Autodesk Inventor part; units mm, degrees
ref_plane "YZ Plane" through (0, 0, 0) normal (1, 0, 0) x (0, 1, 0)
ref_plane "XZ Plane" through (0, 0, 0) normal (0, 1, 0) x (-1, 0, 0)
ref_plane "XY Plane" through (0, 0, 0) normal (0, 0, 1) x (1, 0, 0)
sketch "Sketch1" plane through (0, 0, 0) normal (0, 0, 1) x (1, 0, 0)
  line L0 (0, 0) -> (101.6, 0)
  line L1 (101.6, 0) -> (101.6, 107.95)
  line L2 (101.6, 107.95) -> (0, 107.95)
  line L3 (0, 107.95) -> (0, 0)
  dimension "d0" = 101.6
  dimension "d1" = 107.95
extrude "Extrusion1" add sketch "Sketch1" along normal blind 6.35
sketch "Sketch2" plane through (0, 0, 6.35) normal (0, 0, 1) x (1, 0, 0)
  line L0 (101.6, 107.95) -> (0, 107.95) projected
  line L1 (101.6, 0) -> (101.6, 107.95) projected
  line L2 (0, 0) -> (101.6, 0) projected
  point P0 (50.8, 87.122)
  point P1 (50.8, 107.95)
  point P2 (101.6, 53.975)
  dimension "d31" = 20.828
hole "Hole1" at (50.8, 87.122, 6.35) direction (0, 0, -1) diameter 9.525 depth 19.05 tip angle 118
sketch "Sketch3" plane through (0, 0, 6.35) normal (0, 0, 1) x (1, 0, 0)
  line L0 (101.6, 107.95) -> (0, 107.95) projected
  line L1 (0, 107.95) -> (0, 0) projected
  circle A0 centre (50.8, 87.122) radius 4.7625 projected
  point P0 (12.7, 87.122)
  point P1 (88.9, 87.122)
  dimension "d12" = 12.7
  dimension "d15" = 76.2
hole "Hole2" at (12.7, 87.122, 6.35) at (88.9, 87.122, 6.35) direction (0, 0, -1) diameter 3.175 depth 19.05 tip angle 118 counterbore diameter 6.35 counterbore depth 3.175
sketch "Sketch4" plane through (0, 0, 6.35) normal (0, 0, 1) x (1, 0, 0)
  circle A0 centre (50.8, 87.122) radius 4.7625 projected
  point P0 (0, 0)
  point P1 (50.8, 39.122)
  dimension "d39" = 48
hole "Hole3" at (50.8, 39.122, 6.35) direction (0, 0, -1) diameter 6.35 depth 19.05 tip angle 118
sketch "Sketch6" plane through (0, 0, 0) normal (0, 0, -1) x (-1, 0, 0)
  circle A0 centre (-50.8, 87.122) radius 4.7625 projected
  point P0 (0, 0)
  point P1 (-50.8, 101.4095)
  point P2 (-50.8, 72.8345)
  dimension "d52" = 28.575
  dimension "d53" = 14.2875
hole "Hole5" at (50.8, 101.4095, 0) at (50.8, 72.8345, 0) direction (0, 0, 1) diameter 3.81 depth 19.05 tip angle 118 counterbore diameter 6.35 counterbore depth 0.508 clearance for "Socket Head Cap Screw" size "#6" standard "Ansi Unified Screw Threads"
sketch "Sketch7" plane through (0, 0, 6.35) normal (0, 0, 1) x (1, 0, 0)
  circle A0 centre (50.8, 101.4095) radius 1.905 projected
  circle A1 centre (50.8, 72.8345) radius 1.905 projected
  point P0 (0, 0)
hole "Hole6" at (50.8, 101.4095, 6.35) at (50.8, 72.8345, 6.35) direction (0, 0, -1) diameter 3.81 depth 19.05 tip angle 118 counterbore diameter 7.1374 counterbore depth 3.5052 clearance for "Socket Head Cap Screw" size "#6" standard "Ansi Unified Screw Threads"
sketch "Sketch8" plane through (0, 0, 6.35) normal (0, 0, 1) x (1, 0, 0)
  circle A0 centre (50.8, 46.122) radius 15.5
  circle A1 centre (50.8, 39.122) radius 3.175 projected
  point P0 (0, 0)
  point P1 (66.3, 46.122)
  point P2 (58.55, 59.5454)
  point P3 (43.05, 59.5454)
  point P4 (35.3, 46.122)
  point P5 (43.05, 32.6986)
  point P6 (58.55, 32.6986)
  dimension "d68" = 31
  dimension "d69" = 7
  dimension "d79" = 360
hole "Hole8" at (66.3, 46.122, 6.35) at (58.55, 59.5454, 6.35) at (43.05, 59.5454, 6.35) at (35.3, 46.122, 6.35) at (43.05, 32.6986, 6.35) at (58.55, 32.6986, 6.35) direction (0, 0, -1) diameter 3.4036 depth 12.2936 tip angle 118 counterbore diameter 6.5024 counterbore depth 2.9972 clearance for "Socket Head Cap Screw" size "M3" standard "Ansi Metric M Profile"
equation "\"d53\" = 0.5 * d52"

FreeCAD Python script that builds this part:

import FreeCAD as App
import Part
import Sketcher
from FreeCAD import Vector
Q = App.Units.Quantity

doc = App.newDocument("Part")
body = doc.addObject("PartDesign::Body", "Body")

# Sketch on XY plane
sketch1 = body.newObject("Sketcher::SketchObject", "Sketch")
sketch1.AttachmentSupport = (doc.getObject("XY_Plane"), [""])
sketch1.MapMode = "FlatFace"
sketch1.addGeometry([
    Part.LineSegment(Vector(0, 108, 0), Vector(0, 0, 0)),
    Part.LineSegment(Vector(0, 0, 0), Vector(102, 0, 0)),
    Part.LineSegment(Vector(102, 0, 0), Vector(102, 108, 0)),
    Part.LineSegment(Vector(102, 108, 0), Vector(0, 108, 0)),
], False)
sketch1.addConstraint([
    Sketcher.Constraint("Coincident", 0, 2, 1, 1),
    Sketcher.Constraint("Coincident", 1, 2, 2, 1),
    Sketcher.Constraint("Coincident", 2, 2, 3, 1),
    Sketcher.Constraint("Coincident", 3, 2, 0, 1),
    Sketcher.Constraint("Vertical", 0),
    Sketcher.Constraint("Horizontal", 1),
    Sketcher.Constraint("Vertical", 2),
    Sketcher.Constraint("Horizontal", 3),
    Sketcher.Constraint("Coincident", 0, 2, -1, 1),
    Sketcher.Constraint("DistanceX", 1, 1, 1, 2, Q("4 in")),
    Sketcher.Constraint("DistanceY", 0, 2, 0, 1, Q("4.25 in")),
])
pad1 = body.newObject("PartDesign::Pad", "Pad")
pad1.Profile = sketch1
pad1.Length = Q("0.25 in")

# Sketch on XY plane
sketch2 = body.newObject("Sketcher::SketchObject", "Sketch001")
sketch2.AttachmentSupport = (doc.getObject("XY_Plane"), [""])
sketch2.MapMode = "FlatFace"
sketch2.AttachmentOffset = App.Placement(Vector(0, 0, 0.25 * 25.4), App.Rotation())
sketch2.addGeometry(Part.Circle(Vector(50.8, 87.1, 0), Vector(0, 0, 1), 4.8), False)
sketch2.addConstraint([
    Sketcher.Constraint("Diameter", 0, Q("0.375 in")),
    Sketcher.Constraint("DistanceX", -1, 1, 0, 3, Q("2 in")),
    Sketcher.Constraint("DistanceY", -1, 1, 0, 3, Q("3.43 in")),
])
doc.recompute()
hole = body.newObject("PartDesign::Hole", "Hole")
hole.Profile = sketch2
hole.ThreadType = "None"
hole.Diameter = Q("0.375 in")
hole.DepthType = "Dimension"
hole.Depth = Q("0.75 in")
hole.DrillPoint = "Angled"
hole.DrillPointAngle = 118

# Sketch on XY plane
sketch3 = body.newObject("Sketcher::SketchObject", "Sketch002")
sketch3.AttachmentSupport = (doc.getObject("XY_Plane"), [""])
sketch3.MapMode = "FlatFace"
sketch3.AttachmentOffset = App.Placement(Vector(0, 0, 0.25 * 25.4), App.Rotation())
sketch3.addGeometry([
    Part.Circle(Vector(12.7, 87.1, 0), Vector(0, 0, 1), 1.6),
    Part.Circle(Vector(88.9, 87.1, 0), Vector(0, 0, 1), 1.6),
], False)
sketch3.addConstraint([
    Sketcher.Constraint("Equal", 0, 1),
    Sketcher.Constraint("Horizontal", 0, 3, 1, 3),
    Sketcher.Constraint("Diameter", 0, Q("0.125 in")),
    Sketcher.Constraint("DistanceX", 0, 3, 1, 3, Q("3 in")),
    Sketcher.Constraint("DistanceX", -1, 1, 0, 3, Q("0.5 in")),
    Sketcher.Constraint("DistanceY", -1, 1, 0, 3, Q("3.43 in")),
])
doc.recompute()
hole2 = body.newObject("PartDesign::Hole", "Hole001")
hole2.Profile = sketch3
hole2.ThreadType = "None"
hole2.Diameter = Q("0.125 in")
hole2.DepthType = "Dimension"
hole2.Depth = Q("0.75 in")
hole2.DrillPoint = "Angled"
hole2.DrillPointAngle = 118
hole2.HoleCutType = "Counterbore"
hole2.HoleCutDiameter = Q("0.25 in")
hole2.HoleCutDepth = Q("0.125 in")

# Sketch on XY plane
sketch4 = body.newObject("Sketcher::SketchObject", "Sketch003")
sketch4.AttachmentSupport = (doc.getObject("XY_Plane"), [""])
sketch4.MapMode = "FlatFace"
sketch4.AttachmentOffset = App.Placement(Vector(0, 0, 0.25 * 25.4), App.Rotation())
sketch4.addGeometry(Part.Circle(Vector(50.8, 39.1, 0), Vector(0, 0, 1), 3.2), False)
sketch4.addConstraint([
    Sketcher.Constraint("Diameter", 0, Q("0.25 in")),
    Sketcher.Constraint("DistanceX", -1, 1, 0, 3, Q("2 in")),
    Sketcher.Constraint("DistanceY", -1, 1, 0, 3, 39.122),
])
doc.recompute()
hole3 = body.newObject("PartDesign::Hole", "Hole002")
hole3.Profile = sketch4
hole3.ThreadType = "None"
hole3.Diameter = Q("0.25 in")
hole3.DepthType = "Dimension"
hole3.Depth = Q("0.75 in")
hole3.DrillPoint = "Angled"
hole3.DrillPointAngle = 118

# Sketch on XY plane
sketch5 = body.newObject("Sketcher::SketchObject", "Sketch004")
sketch5.AttachmentSupport = (doc.getObject("XY_Plane"), [""])
sketch5.MapMode = "FlatFace"
sketch5.addGeometry([
    Part.Circle(Vector(50.8, 101.4, 0), Vector(0, 0, 1), 1.9),
    Part.Circle(Vector(50.8, 72.8, 0), Vector(0, 0, 1), 1.9),
], False)
sketch5.addConstraint([
    Sketcher.Constraint("Equal", 0, 1),
    Sketcher.Constraint("Vertical", 0, 3, 1, 3),
    Sketcher.Constraint("Diameter", 0, Q("0.15 in")),
    Sketcher.Constraint("DistanceX", -1, 1, 0, 3, Q("2 in")),
    Sketcher.Constraint("DistanceY", 1, 3, 0, 3, Q("1.125 in")),
    Sketcher.Constraint("DistanceY", -1, 1, 0, 3, Q("3.9925 in")),
])
doc.recompute()
hole4 = body.newObject("PartDesign::Hole", "Hole003")
hole4.Profile = sketch5
hole4.ThreadType = "None"
hole4.Diameter = Q("0.15 in")
hole4.DepthType = "Dimension"
hole4.Depth = Q("0.75 in")
hole4.DrillPoint = "Angled"
hole4.DrillPointAngle = 118
hole4.HoleCutType = "Counterbore"
hole4.HoleCutDiameter = Q("0.25 in")
hole4.HoleCutDepth = Q("0.02 in")
hole4.Reversed = True

# Sketch on XY plane
sketch6 = body.newObject("Sketcher::SketchObject", "Sketch005")
sketch6.AttachmentSupport = (doc.getObject("XY_Plane"), [""])
sketch6.MapMode = "FlatFace"
sketch6.AttachmentOffset = App.Placement(Vector(0, 0, 0.25 * 25.4), App.Rotation())
sketch6.addGeometry([
    Part.Circle(Vector(50.8, 101.4, 0), Vector(0, 0, 1), 1.9),
    Part.Circle(Vector(50.8, 72.8, 0), Vector(0, 0, 1), 1.9),
], False)
sketch6.addConstraint([
    Sketcher.Constraint("Equal", 0, 1),
    Sketcher.Constraint("Vertical", 0, 3, 1, 3),
    Sketcher.Constraint("Diameter", 0, Q("0.15 in")),
    Sketcher.Constraint("DistanceX", -1, 1, 0, 3, Q("2 in")),
    Sketcher.Constraint("DistanceY", 1, 3, 0, 3, Q("1.125 in")),
    Sketcher.Constraint("DistanceY", -1, 1, 0, 3, Q("3.9925 in")),
])
doc.recompute()
hole5 = body.newObject("PartDesign::Hole", "Hole004")
hole5.Profile = sketch6
hole5.ThreadType = "None"
hole5.Diameter = Q("0.15 in")
hole5.DepthType = "Dimension"
hole5.Depth = Q("0.75 in")
hole5.DrillPoint = "Angled"
hole5.DrillPointAngle = 118
hole5.HoleCutType = "Counterbore"
hole5.HoleCutDiameter = Q("0.281 in")
hole5.HoleCutDepth = Q("0.138 in")

# Sketch on XY plane
sketch7 = body.newObject("Sketcher::SketchObject", "Sketch006")
sketch7.AttachmentSupport = (doc.getObject("XY_Plane"), [""])
sketch7.MapMode = "FlatFace"
sketch7.AttachmentOffset = App.Placement(Vector(0, 0, 0.25 * 25.4), App.Rotation())
sketch7.addGeometry([
    Part.Circle(Vector(66.3, 46.1, 0), Vector(0, 0, 1), 1.7),  # 0
    Part.Circle(Vector(58.5, 59.5, 0), Vector(0, 0, 1), 1.7),  # 1
    Part.Circle(Vector(43, 59.5, 0), Vector(0, 0, 1), 1.7),  # 2
    Part.Circle(Vector(35.3, 46.1, 0), Vector(0, 0, 1), 1.7),  # 3
    Part.Circle(Vector(43, 32.7, 0), Vector(0, 0, 1), 1.7),  # 4
    Part.Circle(Vector(58.5, 32.7, 0), Vector(0, 0, 1), 1.7),  # 5
], False)
sketch7.addConstraint([
    Sketcher.Constraint("Equal", 0, 1),
    Sketcher.Constraint("Equal", 1, 2),
    Sketcher.Constraint("Equal", 2, 3),
    Sketcher.Constraint("Equal", 3, 4),
    Sketcher.Constraint("Equal", 4, 5),
    Sketcher.Constraint("Horizontal", 1, 3, 2, 3),
    Sketcher.Constraint("Horizontal", 0, 3, 3, 3),
    Sketcher.Constraint("Horizontal", 4, 3, 5, 3),
    Sketcher.Constraint("Vertical", 2, 3, 4, 3),
    Sketcher.Constraint("Vertical", 1, 3, 5, 3),
    Sketcher.Constraint("Diameter", 0, Q("0.134 in")),
    Sketcher.Constraint("DistanceY", -1, 1, 1, 3, Q("2.3443 in")),
    Sketcher.Constraint("DistanceX", -1, 1, 0, 3, 66.3),
    Sketcher.Constraint("DistanceY", -1, 1, 0, 3, 46.122),
    Sketcher.Constraint("DistanceX", -1, 1, 1, 3, 58.55),
    Sketcher.Constraint("DistanceX", -1, 1, 2, 3, 43.05),
    Sketcher.Constraint("DistanceX", -1, 1, 3, 3, 35.3),
    Sketcher.Constraint("DistanceY", -1, 1, 4, 3, 32.6986),
])
doc.recompute()
hole6 = body.newObject("PartDesign::Hole", "Hole005")
hole6.Profile = sketch7
hole6.ThreadType = "None"
hole6.Diameter = Q("0.134 in")
hole6.DepthType = "Dimension"
hole6.Depth = Q("0.484 in")
hole6.DrillPoint = "Angled"
hole6.DrillPointAngle = 118
hole6.HoleCutType = "Counterbore"
hole6.HoleCutDiameter = Q("0.256 in")
hole6.HoleCutDepth = Q("0.118 in")

doc.recompute()
